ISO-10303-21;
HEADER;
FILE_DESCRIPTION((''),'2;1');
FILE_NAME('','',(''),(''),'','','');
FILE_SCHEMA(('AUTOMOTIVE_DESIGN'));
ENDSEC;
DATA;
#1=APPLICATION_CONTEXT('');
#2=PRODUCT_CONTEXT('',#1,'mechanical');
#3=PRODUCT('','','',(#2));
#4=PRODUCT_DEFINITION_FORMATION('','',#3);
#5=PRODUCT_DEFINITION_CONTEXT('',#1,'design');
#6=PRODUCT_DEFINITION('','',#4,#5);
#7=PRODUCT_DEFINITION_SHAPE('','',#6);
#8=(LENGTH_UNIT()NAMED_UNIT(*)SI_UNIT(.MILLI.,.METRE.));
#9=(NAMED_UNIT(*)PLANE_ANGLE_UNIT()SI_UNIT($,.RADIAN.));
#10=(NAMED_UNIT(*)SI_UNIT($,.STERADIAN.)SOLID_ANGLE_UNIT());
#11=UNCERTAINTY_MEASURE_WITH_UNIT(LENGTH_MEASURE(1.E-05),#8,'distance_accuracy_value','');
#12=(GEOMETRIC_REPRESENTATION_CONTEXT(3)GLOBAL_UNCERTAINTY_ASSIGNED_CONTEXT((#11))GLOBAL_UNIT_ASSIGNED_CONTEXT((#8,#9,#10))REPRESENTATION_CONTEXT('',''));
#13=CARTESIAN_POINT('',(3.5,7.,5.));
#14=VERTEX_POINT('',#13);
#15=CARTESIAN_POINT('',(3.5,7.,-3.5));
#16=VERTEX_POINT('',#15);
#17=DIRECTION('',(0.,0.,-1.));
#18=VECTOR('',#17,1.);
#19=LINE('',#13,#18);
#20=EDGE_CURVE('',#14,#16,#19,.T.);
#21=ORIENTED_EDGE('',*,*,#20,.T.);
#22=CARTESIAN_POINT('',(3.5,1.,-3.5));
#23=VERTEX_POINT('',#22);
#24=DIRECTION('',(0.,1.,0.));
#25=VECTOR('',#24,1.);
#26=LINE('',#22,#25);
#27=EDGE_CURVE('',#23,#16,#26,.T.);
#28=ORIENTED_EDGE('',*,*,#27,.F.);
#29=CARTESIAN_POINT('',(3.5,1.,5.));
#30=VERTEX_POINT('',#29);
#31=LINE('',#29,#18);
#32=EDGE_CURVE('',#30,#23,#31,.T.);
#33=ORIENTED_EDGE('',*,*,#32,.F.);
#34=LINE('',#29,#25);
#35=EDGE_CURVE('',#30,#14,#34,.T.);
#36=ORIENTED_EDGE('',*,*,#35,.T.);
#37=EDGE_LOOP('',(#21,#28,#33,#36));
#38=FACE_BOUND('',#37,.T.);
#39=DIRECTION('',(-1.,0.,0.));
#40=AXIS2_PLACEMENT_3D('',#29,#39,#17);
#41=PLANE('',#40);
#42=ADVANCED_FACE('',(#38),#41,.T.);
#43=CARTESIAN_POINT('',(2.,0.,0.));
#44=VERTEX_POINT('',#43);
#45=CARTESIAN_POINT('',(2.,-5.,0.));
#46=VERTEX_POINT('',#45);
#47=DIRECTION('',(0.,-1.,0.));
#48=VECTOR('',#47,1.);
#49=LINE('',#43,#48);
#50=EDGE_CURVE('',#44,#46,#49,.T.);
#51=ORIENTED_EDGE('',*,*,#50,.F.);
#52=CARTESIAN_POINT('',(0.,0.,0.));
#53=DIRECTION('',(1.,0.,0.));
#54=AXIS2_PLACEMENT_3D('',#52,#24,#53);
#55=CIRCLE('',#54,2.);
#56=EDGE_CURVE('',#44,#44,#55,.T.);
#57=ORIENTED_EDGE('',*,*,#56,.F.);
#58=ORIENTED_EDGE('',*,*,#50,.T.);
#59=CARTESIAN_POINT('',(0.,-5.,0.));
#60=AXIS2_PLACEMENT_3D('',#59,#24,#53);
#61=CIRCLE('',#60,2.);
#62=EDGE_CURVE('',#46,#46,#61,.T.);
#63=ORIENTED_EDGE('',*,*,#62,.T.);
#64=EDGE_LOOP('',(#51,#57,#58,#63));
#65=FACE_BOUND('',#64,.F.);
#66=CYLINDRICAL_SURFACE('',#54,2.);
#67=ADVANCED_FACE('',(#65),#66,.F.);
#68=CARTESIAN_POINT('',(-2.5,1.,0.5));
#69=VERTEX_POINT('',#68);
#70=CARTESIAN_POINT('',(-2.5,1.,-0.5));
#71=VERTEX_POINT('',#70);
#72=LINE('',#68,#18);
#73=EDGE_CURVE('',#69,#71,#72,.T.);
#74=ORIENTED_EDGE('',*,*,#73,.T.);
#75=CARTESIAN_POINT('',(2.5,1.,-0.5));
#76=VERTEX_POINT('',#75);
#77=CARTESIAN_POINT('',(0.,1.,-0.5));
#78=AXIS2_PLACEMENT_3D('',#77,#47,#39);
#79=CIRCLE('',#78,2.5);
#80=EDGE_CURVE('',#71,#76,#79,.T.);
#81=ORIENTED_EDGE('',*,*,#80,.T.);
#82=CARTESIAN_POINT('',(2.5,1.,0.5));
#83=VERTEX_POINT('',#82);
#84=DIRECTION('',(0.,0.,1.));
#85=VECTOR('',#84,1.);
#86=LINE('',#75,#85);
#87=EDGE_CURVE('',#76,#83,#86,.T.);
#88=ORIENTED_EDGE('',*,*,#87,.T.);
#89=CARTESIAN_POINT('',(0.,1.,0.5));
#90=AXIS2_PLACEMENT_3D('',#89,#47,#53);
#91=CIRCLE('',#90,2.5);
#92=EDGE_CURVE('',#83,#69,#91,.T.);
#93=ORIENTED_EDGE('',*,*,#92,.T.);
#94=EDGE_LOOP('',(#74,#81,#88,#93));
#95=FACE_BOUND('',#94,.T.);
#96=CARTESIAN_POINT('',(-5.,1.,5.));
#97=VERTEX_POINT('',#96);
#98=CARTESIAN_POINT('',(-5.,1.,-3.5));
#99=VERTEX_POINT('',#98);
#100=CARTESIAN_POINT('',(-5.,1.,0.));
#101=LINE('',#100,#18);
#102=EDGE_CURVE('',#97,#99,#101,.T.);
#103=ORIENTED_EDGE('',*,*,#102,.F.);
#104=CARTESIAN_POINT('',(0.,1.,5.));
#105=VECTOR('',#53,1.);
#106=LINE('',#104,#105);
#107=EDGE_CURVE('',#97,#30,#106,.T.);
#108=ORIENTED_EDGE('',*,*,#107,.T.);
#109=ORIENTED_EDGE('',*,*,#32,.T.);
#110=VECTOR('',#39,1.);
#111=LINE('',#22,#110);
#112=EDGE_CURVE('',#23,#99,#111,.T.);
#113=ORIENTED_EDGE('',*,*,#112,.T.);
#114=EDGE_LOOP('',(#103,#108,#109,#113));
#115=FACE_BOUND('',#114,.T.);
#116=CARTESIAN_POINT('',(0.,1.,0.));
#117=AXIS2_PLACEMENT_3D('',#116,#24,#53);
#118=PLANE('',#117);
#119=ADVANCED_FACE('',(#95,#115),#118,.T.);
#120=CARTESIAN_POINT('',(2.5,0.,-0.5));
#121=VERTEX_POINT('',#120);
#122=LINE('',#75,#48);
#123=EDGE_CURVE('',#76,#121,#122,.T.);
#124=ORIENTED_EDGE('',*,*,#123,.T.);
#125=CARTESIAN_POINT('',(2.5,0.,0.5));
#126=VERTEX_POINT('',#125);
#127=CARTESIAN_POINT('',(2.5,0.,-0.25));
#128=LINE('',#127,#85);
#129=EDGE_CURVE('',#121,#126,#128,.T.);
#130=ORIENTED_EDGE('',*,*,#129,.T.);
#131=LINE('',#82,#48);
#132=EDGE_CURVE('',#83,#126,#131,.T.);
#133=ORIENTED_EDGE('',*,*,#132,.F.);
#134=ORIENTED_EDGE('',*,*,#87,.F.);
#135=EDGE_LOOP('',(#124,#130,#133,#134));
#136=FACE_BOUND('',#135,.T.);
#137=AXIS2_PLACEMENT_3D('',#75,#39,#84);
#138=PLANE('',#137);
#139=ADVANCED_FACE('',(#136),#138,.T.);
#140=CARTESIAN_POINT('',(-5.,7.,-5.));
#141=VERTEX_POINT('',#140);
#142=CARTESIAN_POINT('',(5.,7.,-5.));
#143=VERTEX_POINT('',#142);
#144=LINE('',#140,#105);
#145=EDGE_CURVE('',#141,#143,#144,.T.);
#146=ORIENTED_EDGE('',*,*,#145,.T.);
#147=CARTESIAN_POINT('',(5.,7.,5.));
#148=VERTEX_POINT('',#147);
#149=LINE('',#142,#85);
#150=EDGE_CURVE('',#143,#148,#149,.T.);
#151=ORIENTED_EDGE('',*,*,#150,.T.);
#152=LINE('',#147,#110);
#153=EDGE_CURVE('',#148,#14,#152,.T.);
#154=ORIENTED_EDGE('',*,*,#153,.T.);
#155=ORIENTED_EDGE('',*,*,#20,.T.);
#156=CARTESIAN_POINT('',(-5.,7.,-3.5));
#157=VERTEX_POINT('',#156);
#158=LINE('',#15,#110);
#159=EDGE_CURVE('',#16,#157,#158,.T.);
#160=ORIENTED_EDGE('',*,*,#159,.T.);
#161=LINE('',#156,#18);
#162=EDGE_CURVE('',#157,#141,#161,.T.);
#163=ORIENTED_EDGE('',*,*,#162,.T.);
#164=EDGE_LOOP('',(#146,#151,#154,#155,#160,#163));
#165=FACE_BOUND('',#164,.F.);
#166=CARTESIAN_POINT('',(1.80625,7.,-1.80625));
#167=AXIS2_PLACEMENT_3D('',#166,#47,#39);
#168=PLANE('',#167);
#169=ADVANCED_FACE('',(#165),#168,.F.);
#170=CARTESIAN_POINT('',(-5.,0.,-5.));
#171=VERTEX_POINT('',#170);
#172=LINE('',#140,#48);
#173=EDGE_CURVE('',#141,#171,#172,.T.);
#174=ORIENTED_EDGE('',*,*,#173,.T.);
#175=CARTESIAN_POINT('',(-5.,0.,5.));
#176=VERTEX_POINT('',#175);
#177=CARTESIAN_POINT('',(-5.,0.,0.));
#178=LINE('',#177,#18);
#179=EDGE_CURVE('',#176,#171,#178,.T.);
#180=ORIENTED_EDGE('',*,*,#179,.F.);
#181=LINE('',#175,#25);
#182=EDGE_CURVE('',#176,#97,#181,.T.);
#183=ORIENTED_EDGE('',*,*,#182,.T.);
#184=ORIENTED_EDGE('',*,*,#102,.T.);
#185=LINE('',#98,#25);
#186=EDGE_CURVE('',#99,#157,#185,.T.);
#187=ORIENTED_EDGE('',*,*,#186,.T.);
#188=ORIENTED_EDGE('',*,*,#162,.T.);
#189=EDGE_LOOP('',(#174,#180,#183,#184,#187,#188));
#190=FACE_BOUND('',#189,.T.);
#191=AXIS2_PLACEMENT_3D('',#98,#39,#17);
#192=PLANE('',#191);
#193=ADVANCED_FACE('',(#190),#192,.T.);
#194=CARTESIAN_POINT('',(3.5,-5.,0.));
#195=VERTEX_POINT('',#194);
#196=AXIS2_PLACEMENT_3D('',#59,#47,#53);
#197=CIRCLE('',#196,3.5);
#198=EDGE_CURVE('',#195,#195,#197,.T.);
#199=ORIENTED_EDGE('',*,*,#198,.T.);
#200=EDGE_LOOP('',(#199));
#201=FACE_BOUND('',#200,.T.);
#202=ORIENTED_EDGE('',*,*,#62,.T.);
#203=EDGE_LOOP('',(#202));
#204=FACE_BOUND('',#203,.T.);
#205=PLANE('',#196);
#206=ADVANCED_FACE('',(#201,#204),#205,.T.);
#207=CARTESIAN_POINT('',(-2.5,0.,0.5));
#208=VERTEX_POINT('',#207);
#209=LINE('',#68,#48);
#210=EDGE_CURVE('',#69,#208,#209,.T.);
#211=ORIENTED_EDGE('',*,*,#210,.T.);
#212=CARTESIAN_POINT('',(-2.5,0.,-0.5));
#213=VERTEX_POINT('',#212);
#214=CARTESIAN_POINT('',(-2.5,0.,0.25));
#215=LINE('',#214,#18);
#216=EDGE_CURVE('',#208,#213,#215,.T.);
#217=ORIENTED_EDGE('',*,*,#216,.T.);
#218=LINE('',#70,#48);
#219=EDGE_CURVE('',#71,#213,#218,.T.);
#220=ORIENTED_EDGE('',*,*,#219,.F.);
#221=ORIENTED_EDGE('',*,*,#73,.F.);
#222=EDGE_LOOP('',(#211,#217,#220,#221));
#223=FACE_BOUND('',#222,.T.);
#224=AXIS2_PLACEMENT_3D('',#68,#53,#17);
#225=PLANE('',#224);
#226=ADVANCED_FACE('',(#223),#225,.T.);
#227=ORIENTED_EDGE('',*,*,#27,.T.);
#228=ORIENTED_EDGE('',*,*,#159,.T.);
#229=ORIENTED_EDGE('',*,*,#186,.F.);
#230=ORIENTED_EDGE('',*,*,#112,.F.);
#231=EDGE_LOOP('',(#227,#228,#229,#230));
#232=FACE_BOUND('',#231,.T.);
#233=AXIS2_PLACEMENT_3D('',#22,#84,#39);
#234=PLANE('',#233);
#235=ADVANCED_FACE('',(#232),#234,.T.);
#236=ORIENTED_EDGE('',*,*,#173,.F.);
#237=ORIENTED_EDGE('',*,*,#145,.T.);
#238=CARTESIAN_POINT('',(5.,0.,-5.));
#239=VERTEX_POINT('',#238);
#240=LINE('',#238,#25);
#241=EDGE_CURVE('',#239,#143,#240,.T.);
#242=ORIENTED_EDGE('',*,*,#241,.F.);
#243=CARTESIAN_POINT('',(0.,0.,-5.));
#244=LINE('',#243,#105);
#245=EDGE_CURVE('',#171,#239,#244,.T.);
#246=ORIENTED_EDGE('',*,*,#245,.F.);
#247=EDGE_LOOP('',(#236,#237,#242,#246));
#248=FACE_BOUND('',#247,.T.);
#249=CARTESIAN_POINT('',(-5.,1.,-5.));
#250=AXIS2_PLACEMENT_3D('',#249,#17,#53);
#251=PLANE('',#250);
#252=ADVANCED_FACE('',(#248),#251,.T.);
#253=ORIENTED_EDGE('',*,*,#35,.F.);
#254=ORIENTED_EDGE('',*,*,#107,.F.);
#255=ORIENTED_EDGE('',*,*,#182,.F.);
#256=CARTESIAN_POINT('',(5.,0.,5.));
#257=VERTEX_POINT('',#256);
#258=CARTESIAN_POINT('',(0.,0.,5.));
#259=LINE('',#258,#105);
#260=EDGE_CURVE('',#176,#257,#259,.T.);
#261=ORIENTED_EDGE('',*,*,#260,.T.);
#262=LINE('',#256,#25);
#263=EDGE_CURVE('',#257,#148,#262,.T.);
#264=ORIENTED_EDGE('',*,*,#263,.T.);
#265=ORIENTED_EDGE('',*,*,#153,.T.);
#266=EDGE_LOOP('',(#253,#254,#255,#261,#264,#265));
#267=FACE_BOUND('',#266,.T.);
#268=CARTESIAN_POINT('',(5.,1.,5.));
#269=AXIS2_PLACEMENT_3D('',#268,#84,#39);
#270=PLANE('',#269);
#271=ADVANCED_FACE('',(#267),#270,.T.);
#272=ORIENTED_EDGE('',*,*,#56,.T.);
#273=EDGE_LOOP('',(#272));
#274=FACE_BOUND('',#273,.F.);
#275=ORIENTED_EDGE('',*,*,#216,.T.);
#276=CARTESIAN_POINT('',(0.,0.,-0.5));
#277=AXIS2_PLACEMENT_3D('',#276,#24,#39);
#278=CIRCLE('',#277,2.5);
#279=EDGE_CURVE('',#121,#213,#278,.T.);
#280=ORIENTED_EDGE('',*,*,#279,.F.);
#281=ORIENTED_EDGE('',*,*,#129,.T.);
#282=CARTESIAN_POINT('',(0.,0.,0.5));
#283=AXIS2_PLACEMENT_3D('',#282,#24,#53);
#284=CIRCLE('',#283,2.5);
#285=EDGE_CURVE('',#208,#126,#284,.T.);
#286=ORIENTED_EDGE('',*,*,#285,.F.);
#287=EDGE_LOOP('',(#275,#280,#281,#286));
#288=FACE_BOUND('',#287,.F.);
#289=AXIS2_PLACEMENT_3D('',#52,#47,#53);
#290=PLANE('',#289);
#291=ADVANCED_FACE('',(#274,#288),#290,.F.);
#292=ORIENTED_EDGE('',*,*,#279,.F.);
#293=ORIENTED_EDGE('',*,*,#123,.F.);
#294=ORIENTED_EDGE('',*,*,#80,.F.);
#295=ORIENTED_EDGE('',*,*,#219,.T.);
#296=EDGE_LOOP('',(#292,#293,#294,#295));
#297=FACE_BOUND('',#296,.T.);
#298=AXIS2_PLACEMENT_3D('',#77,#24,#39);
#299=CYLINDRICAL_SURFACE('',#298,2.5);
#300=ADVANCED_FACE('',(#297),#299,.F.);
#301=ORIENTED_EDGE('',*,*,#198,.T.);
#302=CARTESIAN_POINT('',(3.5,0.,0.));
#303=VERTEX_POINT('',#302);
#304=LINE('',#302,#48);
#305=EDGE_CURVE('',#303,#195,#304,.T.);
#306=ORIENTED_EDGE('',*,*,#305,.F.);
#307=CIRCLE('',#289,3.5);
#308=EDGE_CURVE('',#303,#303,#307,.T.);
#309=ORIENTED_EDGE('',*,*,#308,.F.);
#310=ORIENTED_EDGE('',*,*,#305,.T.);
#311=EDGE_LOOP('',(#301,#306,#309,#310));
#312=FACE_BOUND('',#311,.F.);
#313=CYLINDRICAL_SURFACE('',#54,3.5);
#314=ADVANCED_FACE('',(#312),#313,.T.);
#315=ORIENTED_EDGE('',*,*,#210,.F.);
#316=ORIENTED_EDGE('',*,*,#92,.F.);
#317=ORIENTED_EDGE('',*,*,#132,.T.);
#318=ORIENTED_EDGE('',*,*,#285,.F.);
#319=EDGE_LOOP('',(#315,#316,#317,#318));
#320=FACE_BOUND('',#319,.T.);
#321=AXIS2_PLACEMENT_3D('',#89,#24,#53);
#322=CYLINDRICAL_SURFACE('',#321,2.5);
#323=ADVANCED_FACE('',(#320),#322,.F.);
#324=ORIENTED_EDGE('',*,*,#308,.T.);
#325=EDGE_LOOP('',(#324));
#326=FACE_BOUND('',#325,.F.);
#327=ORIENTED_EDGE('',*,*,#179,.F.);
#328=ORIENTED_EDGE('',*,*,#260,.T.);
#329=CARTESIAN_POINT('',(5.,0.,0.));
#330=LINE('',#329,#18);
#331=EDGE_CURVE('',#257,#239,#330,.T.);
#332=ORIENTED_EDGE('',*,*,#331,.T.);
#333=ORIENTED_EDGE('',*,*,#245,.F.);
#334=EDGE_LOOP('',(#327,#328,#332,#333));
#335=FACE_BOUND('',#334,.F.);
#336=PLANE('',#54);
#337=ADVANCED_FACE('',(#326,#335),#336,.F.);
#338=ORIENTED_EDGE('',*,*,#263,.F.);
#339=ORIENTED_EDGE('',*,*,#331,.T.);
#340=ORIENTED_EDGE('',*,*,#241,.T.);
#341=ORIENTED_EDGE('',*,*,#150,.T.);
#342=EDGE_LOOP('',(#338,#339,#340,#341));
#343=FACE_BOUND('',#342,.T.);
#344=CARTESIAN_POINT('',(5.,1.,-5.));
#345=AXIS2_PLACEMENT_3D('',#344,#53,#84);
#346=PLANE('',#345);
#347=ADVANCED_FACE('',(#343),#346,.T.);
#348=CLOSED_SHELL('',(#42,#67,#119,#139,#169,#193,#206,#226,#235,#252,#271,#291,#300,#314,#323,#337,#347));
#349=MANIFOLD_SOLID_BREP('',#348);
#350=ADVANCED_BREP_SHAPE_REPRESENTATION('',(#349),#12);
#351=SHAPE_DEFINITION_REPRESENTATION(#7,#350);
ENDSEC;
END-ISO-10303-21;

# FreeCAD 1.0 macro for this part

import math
import FreeCAD as App
import Part
import Sketcher
from FreeCAD import Vector
Q = App.Units.Quantity


def add_polygon(sketch, points):
    """Adds a closed chain of lines whose ends are joined by coincident constraints."""
    first, n = sketch.GeometryCount, len(points)
    for a, b in zip(points, points[1:] + points[:1]):
        sketch.addGeometry(Part.LineSegment(App.Vector(*a, 0), App.Vector(*b, 0)), False)
    for i in range(n):
        sketch.addConstraint(Sketcher.Constraint("Coincident", first + i, 2, first + (i + 1) % n, 1))

doc = App.newDocument("Part")
params = doc.addObject("Spreadsheet::Sheet", "Params")
for row, (alias, value) in enumerate([
    ("sketch1_width", "10 mm"),
    ("pad1_length", "1 mm"),
    ("sketch2_radius", "2.5 mm"),
    ("sketch2_height", "1 mm"),
    ("pocket1_length", "1.5 mm"),
    ("sketch3_diameter", "7 mm"),
    ("pad2_length", "5 mm"),
    ("sketch4_diameter", "4 mm"),
    ("sketch5_width", "10 mm"),
    ("sketch5_width2", "1.5 mm"),
    ("pad3_length", "6 mm"),
], start=1):
    params.set(f"A{row}", alias)
    params.set(f"B{row}", "=" + value)
    params.setAlias(f"B{row}", alias)

body = doc.addObject("PartDesign::Body", "Body")

# Sketch on XZ plane
sketch1 = doc.addObject("Sketcher::SketchObject", "Sketch")
body.addObject(sketch1)
sketch1.AttachmentSupport = (doc.XZ_Plane, [""])
sketch1.MapMode = "FlatFace"
add_polygon(sketch1, [(-5, -5), (-5, 5), (5, 5), (5, -5)])  # lines 0-3
sketch1.addConstraint(Sketcher.Constraint("Vertical", 0))
sketch1.addConstraint(Sketcher.Constraint("Horizontal", 1))
sketch1.addConstraint(Sketcher.Constraint("Vertical", 2))
sketch1.addConstraint(Sketcher.Constraint("Horizontal", 3))
sketch1.addConstraint(Sketcher.Constraint("Symmetric", 0, 2, 2, 2, -1, 1))
sketch1.addConstraint(Sketcher.Constraint("Equal", 3, 0))
sketch1.addConstraint(Sketcher.Constraint("DistanceX", 1, 1, 1, 2, Q("10 mm")))
sketch1.setExpression("Constraints[10]", "Params.sketch1_width")
pad1 = doc.addObject("PartDesign::Pad", "Pad")
body.addObject(pad1)
pad1.Profile = sketch1
pad1.setExpression("Length", "Params.pad1_length")
pad1.Reversed = True

# Sketch on XZ plane
sketch2 = doc.addObject("Sketcher::SketchObject", "Sketch001")
body.addObject(sketch2)
sketch2.AttachmentSupport = (doc.XZ_Plane, [""])
sketch2.MapMode = "FlatFace"
sketch2.AttachmentOffset = App.Placement(Vector(0, 0, -1), App.Rotation())
sketch2.addGeometry(Part.LineSegment(Vector(2.5, 0.5, 0), Vector(2.5, -0.5, 0)), False)
sketch2.addGeometry(Part.ArcOfCircle(Part.Circle(Vector(0, -0.5, 0), Vector(0, 0, 1), 2.5), math.radians(180), math.radians(360)), False)
sketch2.addGeometry(Part.LineSegment(Vector(-2.5, -0.5, 0), Vector(-2.5, 0.5, 0)), False)
sketch2.addGeometry(Part.ArcOfCircle(Part.Circle(Vector(0, 0.5, 0), Vector(0, 0, 1), 2.5), math.radians(0), math.radians(180)), False)
sketch2.addConstraint(Sketcher.Constraint("Tangent", 0, 2, 1, 2))
sketch2.addConstraint(Sketcher.Constraint("Tangent", 1, 1, 2, 1))
sketch2.addConstraint(Sketcher.Constraint("Tangent", 2, 2, 3, 2))
sketch2.addConstraint(Sketcher.Constraint("Tangent", 3, 1, 0, 1))
sketch2.addConstraint(Sketcher.Constraint("Vertical", 0))
sketch2.addConstraint(Sketcher.Constraint("Vertical", 2))
sketch2.addConstraint(Sketcher.Constraint("Symmetric", 1, 3, 3, 3, -1, 1))
sketch2.addConstraint(Sketcher.Constraint("Radius", 1, Q("2.5 mm")))
sketch2.addConstraint(Sketcher.Constraint("DistanceY", 0, 2, 0, 1, Q("1 mm")))
sketch2.setExpression("Constraints[7]", "Params.sketch2_radius")
sketch2.setExpression("Constraints[8]", "Params.sketch2_height")
pocket1 = doc.addObject("PartDesign::Pocket", "Pocket")
body.addObject(pocket1)
pocket1.Profile = sketch2
pocket1.setExpression("Length", "Params.pocket1_length")
pocket1.Reversed = True

# Sketch on XZ plane
sketch3 = doc.addObject("Sketcher::SketchObject", "Sketch002")
body.addObject(sketch3)
sketch3.AttachmentSupport = (doc.XZ_Plane, [""])
sketch3.MapMode = "FlatFace"
sketch3.addGeometry(Part.Circle(Vector(0, 0, 0), Vector(0, 0, 1), 3.5), False)
sketch3.addConstraint(Sketcher.Constraint("Coincident", 0, 3, -1, 1))
sketch3.addConstraint(Sketcher.Constraint("Diameter", 0, Q("7 mm")))
sketch3.setExpression("Constraints[1]", "Params.sketch3_diameter")
pad2 = doc.addObject("PartDesign::Pad", "Pad001")
body.addObject(pad2)
pad2.Profile = sketch3
pad2.setExpression("Length", "Params.pad2_length")

# Sketch on XZ plane
sketch4 = doc.addObject("Sketcher::SketchObject", "Sketch003")
body.addObject(sketch4)
sketch4.AttachmentSupport = (doc.XZ_Plane, [""])
sketch4.MapMode = "FlatFace"
sketch4.addGeometry(Part.Circle(Vector(0, 0, 0), Vector(0, 0, 1), 2), False)
sketch4.addConstraint(Sketcher.Constraint("Coincident", 0, 3, -1, 1))
sketch4.addConstraint(Sketcher.Constraint("Diameter", 0, Q("4 mm")))
sketch4.setExpression("Constraints[1]", "Params.sketch4_diameter")
pocket2 = doc.addObject("PartDesign::Pocket", "Pocket001")
body.addObject(pocket2)
pocket2.Profile = sketch4
pocket2.Type = "ThroughAll"
pocket2.Reversed = True

# Sketch on XZ plane
sketch5 = doc.addObject("Sketcher::SketchObject", "Sketch004")
body.addObject(sketch5)
sketch5.AttachmentSupport = (doc.XZ_Plane, [""])
sketch5.MapMode = "FlatFace"
sketch5.AttachmentOffset = App.Placement(Vector(0, 0, -1), App.Rotation())
add_polygon(sketch5, [(3.5, -3.5), (3.5, 5), (5, 5), (5, -5), (-5, -5), (-5, -3.5)])  # lines 0-5
sketch5.addConstraint(Sketcher.Constraint("Vertical", 0))
sketch5.addConstraint(Sketcher.Constraint("Horizontal", 1))
sketch5.addConstraint(Sketcher.Constraint("Vertical", 2))
sketch5.addConstraint(Sketcher.Constraint("Horizontal", 3))
sketch5.addConstraint(Sketcher.Constraint("Vertical", 4))
sketch5.addConstraint(Sketcher.Constraint("Horizontal", 5))
sketch5.addConstraint(Sketcher.Constraint("Symmetric", 1, 2, 3, 2, -1, 1))
sketch5.addConstraint(Sketcher.Constraint("Equal", 5, 0))
sketch5.addConstraint(Sketcher.Constraint("Equal", 3, 2))
sketch5.addConstraint(Sketcher.Constraint("DistanceX", 3, 2, 3, 1, Q("10 mm")))
sketch5.addConstraint(Sketcher.Constraint("DistanceX", 1, 1, 1, 2, Q("1.5 mm")))
sketch5.setExpression("Constraints[15]", "Params.sketch5_width")
sketch5.setExpression("Constraints[16]", "Params.sketch5_width2")
pad3 = doc.addObject("PartDesign::Pad", "Pad002")
body.addObject(pad3)
pad3.Profile = sketch5
pad3.setExpression("Length", "Params.pad3_length")
pad3.Reversed = True

doc.recompute()
